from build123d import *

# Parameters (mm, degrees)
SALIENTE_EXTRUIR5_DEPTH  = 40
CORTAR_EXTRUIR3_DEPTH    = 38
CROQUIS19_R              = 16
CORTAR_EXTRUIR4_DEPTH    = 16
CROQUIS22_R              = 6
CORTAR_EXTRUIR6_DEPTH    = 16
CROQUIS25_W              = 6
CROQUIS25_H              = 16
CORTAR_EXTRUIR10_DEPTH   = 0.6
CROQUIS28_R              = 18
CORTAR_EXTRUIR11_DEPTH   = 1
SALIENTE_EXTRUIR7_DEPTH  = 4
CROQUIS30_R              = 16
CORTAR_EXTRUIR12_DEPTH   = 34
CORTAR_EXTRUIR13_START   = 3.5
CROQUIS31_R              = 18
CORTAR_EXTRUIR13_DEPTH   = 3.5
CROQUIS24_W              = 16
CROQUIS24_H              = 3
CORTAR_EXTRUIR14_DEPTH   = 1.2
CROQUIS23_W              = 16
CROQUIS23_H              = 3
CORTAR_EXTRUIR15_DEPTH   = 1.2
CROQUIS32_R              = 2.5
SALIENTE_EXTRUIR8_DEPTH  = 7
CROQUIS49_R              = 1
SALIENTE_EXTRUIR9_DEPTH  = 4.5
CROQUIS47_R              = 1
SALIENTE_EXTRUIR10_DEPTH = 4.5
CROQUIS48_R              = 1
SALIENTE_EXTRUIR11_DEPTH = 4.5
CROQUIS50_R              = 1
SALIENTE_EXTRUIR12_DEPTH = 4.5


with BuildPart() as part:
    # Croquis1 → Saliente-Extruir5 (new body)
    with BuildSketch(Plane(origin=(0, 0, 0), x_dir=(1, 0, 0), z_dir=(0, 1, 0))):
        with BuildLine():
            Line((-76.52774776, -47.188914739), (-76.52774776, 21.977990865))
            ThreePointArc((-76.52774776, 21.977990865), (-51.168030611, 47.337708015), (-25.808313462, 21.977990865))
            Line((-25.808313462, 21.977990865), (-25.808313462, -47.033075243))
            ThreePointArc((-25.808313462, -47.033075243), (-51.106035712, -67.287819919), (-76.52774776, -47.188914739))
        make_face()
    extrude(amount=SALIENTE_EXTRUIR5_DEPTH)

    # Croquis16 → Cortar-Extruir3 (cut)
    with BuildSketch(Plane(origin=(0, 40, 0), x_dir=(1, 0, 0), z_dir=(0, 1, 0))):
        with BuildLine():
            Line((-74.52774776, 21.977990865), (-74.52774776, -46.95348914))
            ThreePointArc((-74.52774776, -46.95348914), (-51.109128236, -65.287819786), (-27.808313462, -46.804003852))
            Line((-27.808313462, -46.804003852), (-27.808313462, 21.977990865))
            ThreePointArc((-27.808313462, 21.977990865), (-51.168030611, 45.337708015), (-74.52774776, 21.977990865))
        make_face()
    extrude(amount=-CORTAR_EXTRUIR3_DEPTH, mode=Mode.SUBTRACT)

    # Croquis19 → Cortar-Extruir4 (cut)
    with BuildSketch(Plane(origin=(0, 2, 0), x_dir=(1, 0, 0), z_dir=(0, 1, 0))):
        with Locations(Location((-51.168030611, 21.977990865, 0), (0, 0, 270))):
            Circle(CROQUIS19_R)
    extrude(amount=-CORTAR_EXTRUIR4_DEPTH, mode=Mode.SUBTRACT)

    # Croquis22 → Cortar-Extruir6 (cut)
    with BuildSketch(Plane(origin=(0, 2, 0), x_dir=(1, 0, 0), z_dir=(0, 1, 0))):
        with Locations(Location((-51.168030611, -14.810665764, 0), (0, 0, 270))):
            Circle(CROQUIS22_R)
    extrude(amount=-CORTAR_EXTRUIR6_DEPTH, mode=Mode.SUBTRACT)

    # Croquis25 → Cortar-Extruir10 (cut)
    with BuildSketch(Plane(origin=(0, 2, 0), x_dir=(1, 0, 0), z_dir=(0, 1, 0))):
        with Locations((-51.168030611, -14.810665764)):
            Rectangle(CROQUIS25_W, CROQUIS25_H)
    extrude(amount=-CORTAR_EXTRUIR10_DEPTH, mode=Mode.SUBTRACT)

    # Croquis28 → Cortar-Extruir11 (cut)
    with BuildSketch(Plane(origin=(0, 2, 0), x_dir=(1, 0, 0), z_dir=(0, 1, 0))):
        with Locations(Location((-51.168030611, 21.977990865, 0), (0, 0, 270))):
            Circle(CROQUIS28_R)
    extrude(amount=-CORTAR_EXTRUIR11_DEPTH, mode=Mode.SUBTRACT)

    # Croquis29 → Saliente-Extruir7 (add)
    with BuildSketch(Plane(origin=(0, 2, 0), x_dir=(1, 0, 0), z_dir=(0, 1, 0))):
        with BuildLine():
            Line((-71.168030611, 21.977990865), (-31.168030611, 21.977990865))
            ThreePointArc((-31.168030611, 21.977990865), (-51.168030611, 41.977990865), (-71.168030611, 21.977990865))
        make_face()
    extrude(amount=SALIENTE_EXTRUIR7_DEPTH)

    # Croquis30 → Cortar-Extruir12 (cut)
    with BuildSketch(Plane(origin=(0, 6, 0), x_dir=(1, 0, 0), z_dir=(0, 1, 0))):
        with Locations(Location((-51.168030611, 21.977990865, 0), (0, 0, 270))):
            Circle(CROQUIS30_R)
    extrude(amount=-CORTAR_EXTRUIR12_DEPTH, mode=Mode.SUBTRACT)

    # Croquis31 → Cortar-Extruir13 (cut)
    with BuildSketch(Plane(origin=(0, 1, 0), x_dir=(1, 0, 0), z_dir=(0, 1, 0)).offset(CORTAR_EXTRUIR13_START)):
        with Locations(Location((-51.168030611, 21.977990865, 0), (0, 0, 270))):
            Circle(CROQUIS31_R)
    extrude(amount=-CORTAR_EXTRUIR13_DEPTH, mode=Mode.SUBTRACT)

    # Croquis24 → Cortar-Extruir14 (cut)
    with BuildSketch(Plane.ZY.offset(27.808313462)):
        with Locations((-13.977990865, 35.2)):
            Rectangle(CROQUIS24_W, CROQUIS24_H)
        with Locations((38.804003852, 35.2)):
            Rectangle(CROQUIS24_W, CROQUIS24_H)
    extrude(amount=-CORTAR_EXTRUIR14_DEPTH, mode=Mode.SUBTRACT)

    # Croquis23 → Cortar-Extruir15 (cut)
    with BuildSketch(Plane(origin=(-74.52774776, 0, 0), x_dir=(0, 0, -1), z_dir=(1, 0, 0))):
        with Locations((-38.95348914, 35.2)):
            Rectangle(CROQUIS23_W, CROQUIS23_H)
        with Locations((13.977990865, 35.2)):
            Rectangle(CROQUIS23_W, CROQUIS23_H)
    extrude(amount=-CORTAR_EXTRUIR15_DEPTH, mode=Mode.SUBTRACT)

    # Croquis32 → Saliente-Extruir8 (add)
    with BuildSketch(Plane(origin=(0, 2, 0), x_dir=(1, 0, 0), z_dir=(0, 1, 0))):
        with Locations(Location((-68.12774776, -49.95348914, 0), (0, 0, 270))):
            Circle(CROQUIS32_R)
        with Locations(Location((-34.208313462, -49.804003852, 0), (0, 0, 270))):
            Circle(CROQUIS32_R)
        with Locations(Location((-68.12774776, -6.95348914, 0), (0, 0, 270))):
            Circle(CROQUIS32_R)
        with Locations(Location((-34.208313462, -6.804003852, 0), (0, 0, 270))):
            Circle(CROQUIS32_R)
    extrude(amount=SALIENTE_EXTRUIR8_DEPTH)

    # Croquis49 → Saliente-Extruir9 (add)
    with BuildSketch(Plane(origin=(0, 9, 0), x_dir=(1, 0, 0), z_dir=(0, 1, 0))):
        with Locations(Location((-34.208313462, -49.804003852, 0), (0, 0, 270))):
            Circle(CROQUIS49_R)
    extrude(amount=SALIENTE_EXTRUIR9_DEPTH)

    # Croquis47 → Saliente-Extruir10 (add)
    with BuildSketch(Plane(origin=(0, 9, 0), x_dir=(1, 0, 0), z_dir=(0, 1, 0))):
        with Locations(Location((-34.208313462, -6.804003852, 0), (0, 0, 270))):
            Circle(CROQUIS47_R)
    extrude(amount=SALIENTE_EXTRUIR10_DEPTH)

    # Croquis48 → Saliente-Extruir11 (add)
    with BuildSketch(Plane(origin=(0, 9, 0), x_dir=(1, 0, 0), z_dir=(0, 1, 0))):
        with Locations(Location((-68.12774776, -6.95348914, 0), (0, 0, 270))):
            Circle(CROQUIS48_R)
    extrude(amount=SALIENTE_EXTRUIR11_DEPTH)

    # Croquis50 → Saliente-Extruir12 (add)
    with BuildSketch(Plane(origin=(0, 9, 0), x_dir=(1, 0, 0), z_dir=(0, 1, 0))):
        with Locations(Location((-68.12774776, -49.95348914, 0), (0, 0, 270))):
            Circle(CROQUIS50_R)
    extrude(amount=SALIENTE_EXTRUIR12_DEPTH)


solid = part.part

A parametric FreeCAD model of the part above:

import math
import FreeCAD as App
import Part
import Sketcher
from FreeCAD import Vector
Q = App.Units.Quantity


def add_polygon(sketch, points):
    """Adds a closed chain of lines whose ends are joined by coincident constraints."""
    first, n = sketch.GeometryCount, len(points)
    for a, b in zip(points, points[1:] + points[:1]):
        sketch.addGeometry(Part.LineSegment(App.Vector(*a, 0), App.Vector(*b, 0)), False)
    for i in range(n):
        sketch.addConstraint(Sketcher.Constraint("Coincident", first + i, 2, first + (i + 1) % n, 1))

doc = App.newDocument("Part")
body = doc.addObject("PartDesign::Body", "Body")

# Sketch on XZ plane
sketch1 = doc.addObject("Sketcher::SketchObject", "Sketch")
body.addObject(sketch1)
sketch1.AttachmentSupport = (doc.XZ_Plane, [""])
sketch1.MapMode = "FlatFace"
sketch1.addGeometry([
    Part.LineSegment(Vector(-76.527748, -21.977991, 0), Vector(-76.527748, 47.188915, 0)),
    Part.ArcOfCircle(Part.Circle(Vector(-51.186001, 41.262429, 0), Vector(0, 0, 1), 26.025514), math.radians(12.810685), math.radians(166.837224)),
    Part.LineSegment(Vector(-25.808313, 47.033075, 0), Vector(-25.808313, -21.977991, 0)),
    Part.ArcOfCircle(Part.Circle(Vector(-51.168031, -21.977991, 0), Vector(0, 0, 1), 25.359717), math.radians(180), math.radians(360)),
], False)
sketch1.addConstraint([
    Sketcher.Constraint("Coincident", 0, 2, 1, 2),
    Sketcher.Constraint("Coincident", 1, 1, 2, 1),
    Sketcher.Constraint("Tangent", 2, 2, 3, 2),
    Sketcher.Constraint("Tangent", 3, 1, 0, 1),
    Sketcher.Constraint("Vertical", 0),
    Sketcher.Constraint("Vertical", 2),
    Sketcher.Constraint("DistanceX", 1, 3, -1, 1, Q("51.186001 mm")),
    Sketcher.Constraint("Radius", 1, Q("26.025514 mm")),
    Sketcher.Constraint("Radius", 3, Q("25.359717 mm")),
    Sketcher.Constraint("DistanceY", 0, 1, 0, 2, Q("69.166906 mm")),
    Sketcher.Constraint("DistanceY", 2, 2, 2, 1, Q("69.011066 mm")),
    Sketcher.Constraint("DistanceY", -1, 1, 1, 3, Q("41.262429 mm")),
])
pad1 = doc.addObject("PartDesign::Pad", "Pad")
body.addObject(pad1)
pad1.Profile = sketch1
pad1.Length = 40
pad1.Reversed = True

# Sketch on XZ plane
sketch2 = doc.addObject("Sketcher::SketchObject", "Sketch001")
body.addObject(sketch2)
sketch2.AttachmentSupport = (doc.XZ_Plane, [""])
sketch2.MapMode = "FlatFace"
sketch2.AttachmentOffset = App.Placement(Vector(0, 0, -40), App.Rotation())
sketch2.addGeometry([
    Part.LineSegment(Vector(-74.527748, -21.977991, 0), Vector(-74.527748, 46.953489, 0)),
    Part.ArcOfCircle(Part.Circle(Vector(-51.186001, 41.262429, 0), Vector(0, 0, 1), 24.025514), math.radians(13.335564), math.radians(166.297786)),
    Part.LineSegment(Vector(-27.808313, 46.804004, 0), Vector(-27.808313, -21.977991, 0)),
    Part.ArcOfCircle(Part.Circle(Vector(-51.168031, -21.977991, 0), Vector(0, 0, 1), 23.359717), math.radians(180), math.radians(360)),
], False)
sketch2.addConstraint([
    Sketcher.Constraint("Coincident", 0, 2, 1, 2),
    Sketcher.Constraint("Coincident", 1, 1, 2, 1),
    Sketcher.Constraint("Tangent", 2, 2, 3, 2),
    Sketcher.Constraint("Tangent", 3, 1, 0, 1),
    Sketcher.Constraint("Vertical", 0),
    Sketcher.Constraint("Vertical", 2),
    Sketcher.Constraint("DistanceX", 1, 3, -1, 1, Q("51.186001 mm")),
    Sketcher.Constraint("Radius", 1, Q("24.025514 mm")),
    Sketcher.Constraint("Radius", 3, Q("23.359717 mm")),
    Sketcher.Constraint("DistanceY", 0, 1, 0, 2, Q("68.93148 mm")),
    Sketcher.Constraint("DistanceY", 2, 2, 2, 1, Q("68.781995 mm")),
    Sketcher.Constraint("DistanceY", -1, 1, 1, 3, Q("41.262429 mm")),
])
pocket1 = doc.addObject("PartDesign::Pocket", "Pocket")
body.addObject(pocket1)
pocket1.Profile = sketch2
pocket1.Length = 38
pocket1.Reversed = True

# Sketch on XZ plane
sketch3 = doc.addObject("Sketcher::SketchObject", "Sketch002")
body.addObject(sketch3)
sketch3.AttachmentSupport = (doc.XZ_Plane, [""])
sketch3.MapMode = "FlatFace"
sketch3.AttachmentOffset = App.Placement(Vector(0, 0, -2), App.Rotation())
sketch3.addGeometry(Part.Circle(Vector(-51.168031, -21.977991, 0), Vector(0, 0, 1), 16), False)
sketch3.addConstraint([
    Sketcher.Constraint("Diameter", 0, Q("32 mm")),
    Sketcher.Constraint("DistanceX", 0, 3, -1, 1, Q("51.168031 mm")),
    Sketcher.Constraint("DistanceY", 0, 3, -1, 1, Q("21.977991 mm")),
])
pocket2 = doc.addObject("PartDesign::Pocket", "Pocket001")
body.addObject(pocket2)
pocket2.Profile = sketch3
pocket2.Length = 16
pocket2.Reversed = True

# Sketch on XZ plane
sketch4 = doc.addObject("Sketcher::SketchObject", "Sketch003")
body.addObject(sketch4)
sketch4.AttachmentSupport = (doc.XZ_Plane, [""])
sketch4.MapMode = "FlatFace"
sketch4.AttachmentOffset = App.Placement(Vector(0, 0, -2), App.Rotation())
sketch4.addGeometry(Part.Circle(Vector(-51.168031, 14.810666, 0), Vector(0, 0, 1), 6), False)
sketch4.addConstraint([
    Sketcher.Constraint("Diameter", 0, Q("12 mm")),
    Sketcher.Constraint("DistanceX", 0, 3, -1, 1, Q("51.168031 mm")),
    Sketcher.Constraint("DistanceY", -1, 1, 0, 3, Q("14.810666 mm")),
])
pocket3 = doc.addObject("PartDesign::Pocket", "Pocket002")
body.addObject(pocket3)
pocket3.Profile = sketch4
pocket3.Length = 16
pocket3.Reversed = True

# Sketch on XZ plane
sketch5 = doc.addObject("Sketcher::SketchObject", "Sketch004")
body.addObject(sketch5)
sketch5.AttachmentSupport = (doc.XZ_Plane, [""])
sketch5.MapMode = "FlatFace"
sketch5.AttachmentOffset = App.Placement(Vector(0, 0, -2), App.Rotation())
add_polygon(sketch5, [(-54.168031, 6.810666), (-54.168031, 22.810666), (-48.168031, 22.810666), (-48.168031, 6.810666)])  # lines 0-3
sketch5.addConstraint([
    Sketcher.Constraint("Vertical", 0),
    Sketcher.Constraint("Horizontal", 1),
    Sketcher.Constraint("Vertical", 2),
    Sketcher.Constraint("Horizontal", 3),
    Sketcher.Constraint("DistanceX", 1, 1, 1, 2, Q("6 mm")),
    Sketcher.Constraint("DistanceY", 0, 1, 0, 2, Q("16 mm")),
    Sketcher.Constraint("DistanceX", 0, 2, -1, 1, Q("54.168031 mm")),
    Sketcher.Constraint("DistanceY", -1, 1, 0, 2, Q("22.810666 mm")),
])
pocket4 = doc.addObject("PartDesign::Pocket", "Pocket003")
body.addObject(pocket4)
pocket4.Profile = sketch5
pocket4.Length = 0.6
pocket4.Reversed = True

# Sketch on XZ plane
sketch6 = doc.addObject("Sketcher::SketchObject", "Sketch005")
body.addObject(sketch6)
sketch6.AttachmentSupport = (doc.XZ_Plane, [""])
sketch6.MapMode = "FlatFace"
sketch6.AttachmentOffset = App.Placement(Vector(0, 0, -2), App.Rotation())
sketch6.addGeometry(Part.Circle(Vector(-51.168031, -21.977991, 0), Vector(0, 0, 1), 18), False)
sketch6.addConstraint([
    Sketcher.Constraint("Diameter", 0, Q("36 mm")),
    Sketcher.Constraint("DistanceX", 0, 3, -1, 1, Q("51.168031 mm")),
    Sketcher.Constraint("DistanceY", 0, 3, -1, 1, Q("21.977991 mm")),
])
pocket5 = doc.addObject("PartDesign::Pocket", "Pocket004")
body.addObject(pocket5)
pocket5.Profile = sketch6
pocket5.Length = 1
pocket5.Reversed = True

# Sketch on XZ plane
sketch7 = doc.addObject("Sketcher::SketchObject", "Sketch006")
body.addObject(sketch7)
sketch7.AttachmentSupport = (doc.XZ_Plane, [""])
sketch7.MapMode = "FlatFace"
sketch7.AttachmentOffset = App.Placement(Vector(0, 0, -2), App.Rotation())
sketch7.addGeometry([
    Part.LineSegment(Vector(-71.168031, -21.977991, 0), Vector(-31.168031, -21.977991, 0)),
    Part.ArcOfCircle(Part.Circle(Vector(-51.168031, -21.977991, 0), Vector(0, 0, 1), 20), math.radians(180), math.radians(360)),
], False)
sketch7.addConstraint([
    Sketcher.Constraint("Coincident", 0, 1, 1, 1),
    Sketcher.Constraint("Coincident", 1, 2, 0, 2),
    Sketcher.Constraint("Horizontal", 0),
    Sketcher.Constraint("Horizontal", 1, 3, 0, 1),
    Sketcher.Constraint("Radius", 1, Q("20 mm")),
    Sketcher.Constraint("DistanceX", 1, 3, -1, 1, Q("51.168031 mm")),
    Sketcher.Constraint("DistanceY", 1, 3, -1, 1, Q("21.977991 mm")),
])
pad2 = doc.addObject("PartDesign::Pad", "Pad001")
body.addObject(pad2)
pad2.Profile = sketch7
pad2.Length = 4
pad2.Reversed = True

# Sketch on XZ plane
sketch8 = doc.addObject("Sketcher::SketchObject", "Sketch007")
body.addObject(sketch8)
sketch8.AttachmentSupport = (doc.XZ_Plane, [""])
sketch8.MapMode = "FlatFace"
sketch8.AttachmentOffset = App.Placement(Vector(0, 0, -6), App.Rotation())
sketch8.addGeometry(Part.Circle(Vector(-51.168031, -21.977991, 0), Vector(0, 0, 1), 16), False)
sketch8.addConstraint([
    Sketcher.Constraint("Diameter", 0, Q("32 mm")),
    Sketcher.Constraint("DistanceX", 0, 3, -1, 1, Q("51.168031 mm")),
    Sketcher.Constraint("DistanceY", 0, 3, -1, 1, Q("21.977991 mm")),
])
pocket6 = doc.addObject("PartDesign::Pocket", "Pocket005")
body.addObject(pocket6)
pocket6.Profile = sketch8
pocket6.Length = 34
pocket6.Reversed = True

# Sketch on XZ plane
sketch9 = doc.addObject("Sketcher::SketchObject", "Sketch008")
body.addObject(sketch9)
sketch9.AttachmentSupport = (doc.XZ_Plane, [""])
sketch9.MapMode = "FlatFace"
sketch9.AttachmentOffset = App.Placement(Vector(0, 0, -4.5), App.Rotation())
sketch9.addGeometry(Part.Circle(Vector(-51.168031, -21.977991, 0), Vector(0, 0, 1), 18), False)
sketch9.addConstraint([
    Sketcher.Constraint("Diameter", 0, Q("36 mm")),
    Sketcher.Constraint("DistanceX", 0, 3, -1, 1, Q("51.168031 mm")),
    Sketcher.Constraint("DistanceY", 0, 3, -1, 1, Q("21.977991 mm")),
])
pocket7 = doc.addObject("PartDesign::Pocket", "Pocket006")
body.addObject(pocket7)
pocket7.Profile = sketch9
pocket7.Length = 3.5
pocket7.Reversed = True

# Sketch on YZ plane
sketch10 = doc.addObject("Sketcher::SketchObject", "Sketch009")
body.addObject(sketch10)
sketch10.AttachmentSupport = (doc.YZ_Plane, [""])
sketch10.MapMode = "FlatFace"
sketch10.AttachmentOffset = App.Placement(Vector(0, 0, -27.808313), App.Rotation())
add_polygon(sketch10, [(36.7, -21.977991), (33.7, -21.977991), (33.7, -5.977991), (36.7, -5.977991)])  # lines 0-3
add_polygon(sketch10, [(36.7, 30.804004), (33.7, 30.804004), (33.7, 46.804004), (36.7, 46.804004)])  # lines 4-7
sketch10.addConstraint([
    Sketcher.Constraint("Horizontal", 0),
    Sketcher.Constraint("Vertical", 1),
    Sketcher.Constraint("Horizontal", 2),
    Sketcher.Constraint("Vertical", 3),
    Sketcher.Constraint("Horizontal", 4),
    Sketcher.Constraint("Vertical", 5),
    Sketcher.Constraint("Horizontal", 6),
    Sketcher.Constraint("Vertical", 7),
    Sketcher.Constraint("Vertical", 1, 2, 4, 2),
    Sketcher.Constraint("Vertical", 3, 2, 6, 2),
    Sketcher.Constraint("Equal", 3, 5),
    Sketcher.Constraint("DistanceX", 0, 2, 0, 1, Q("3 mm")),
    Sketcher.Constraint("DistanceY", 1, 1, 1, 2, Q("16 mm")),
    Sketcher.Constraint("DistanceX", -1, 1, 0, 2, Q("33.7 mm")),
    Sketcher.Constraint("DistanceY", 0, 2, -1, 1, Q("21.977991 mm")),
    Sketcher.Constraint("DistanceY", -1, 1, 4, 2, Q("30.804004 mm")),
])
pocket8 = doc.addObject("PartDesign::Pocket", "Pocket007")
body.addObject(pocket8)
pocket8.Profile = sketch10
pocket8.Length = 1.2
pocket8.Reversed = True

# Sketch on YZ plane
sketch11 = doc.addObject("Sketcher::SketchObject", "Sketch010")
body.addObject(sketch11)
sketch11.AttachmentSupport = (doc.YZ_Plane, [""])
sketch11.MapMode = "FlatFace"
sketch11.AttachmentOffset = App.Placement(Vector(0, 0, -74.527748), App.Rotation())
add_polygon(sketch11, [(36.7, 46.953489), (33.7, 46.953489), (33.7, 30.953489), (36.7, 30.953489)])  # lines 0-3
add_polygon(sketch11, [(36.7, -5.977991), (33.7, -5.977991), (33.7, -21.977991), (36.7, -21.977991)])  # lines 4-7
sketch11.addConstraint([
    Sketcher.Constraint("Horizontal", 0),
    Sketcher.Constraint("Vertical", 1),
    Sketcher.Constraint("Horizontal", 2),
    Sketcher.Constraint("Vertical", 3),
    Sketcher.Constraint("Horizontal", 4),
    Sketcher.Constraint("Vertical", 5),
    Sketcher.Constraint("Horizontal", 6),
    Sketcher.Constraint("Vertical", 7),
    Sketcher.Constraint("Vertical", 1, 2, 4, 2),
    Sketcher.Constraint("Vertical", 3, 2, 6, 2),
    Sketcher.Constraint("Equal", 3, 5),
    Sketcher.Constraint("DistanceX", 0, 2, 0, 1, Q("3 mm")),
    Sketcher.Constraint("DistanceY", 1, 2, 1, 1, Q("16 mm")),
    Sketcher.Constraint("DistanceX", -1, 1, 0, 2, Q("33.7 mm")),
    Sketcher.Constraint("DistanceY", -1, 1, 0, 2, Q("46.953489 mm")),
    Sketcher.Constraint("DistanceY", 4, 2, -1, 1, Q("5.977991 mm")),
])
pocket9 = doc.addObject("PartDesign::Pocket", "Pocket008")
body.addObject(pocket9)
pocket9.Profile = sketch11
pocket9.Length = 1.2

# Sketch on XZ plane
sketch12 = doc.addObject("Sketcher::SketchObject", "Sketch011")
body.addObject(sketch12)
sketch12.AttachmentSupport = (doc.XZ_Plane, [""])
sketch12.MapMode = "FlatFace"
sketch12.AttachmentOffset = App.Placement(Vector(0, 0, -2), App.Rotation())
sketch12.addGeometry([
    Part.Circle(Vector(-68.127748, 49.953489, 0), Vector(0, 0, 1), 2.5),
    Part.Circle(Vector(-34.208313, 49.804004, 0), Vector(0, 0, 1), 2.5),
    Part.Circle(Vector(-68.127748, 6.953489, 0), Vector(0, 0, 1), 2.5),
    Part.Circle(Vector(-34.208313, 6.804004, 0), Vector(0, 0, 1), 2.5),
], False)
sketch12.addConstraint([
    Sketcher.Constraint("Equal", 0, 1),
    Sketcher.Constraint("Equal", 1, 2),
    Sketcher.Constraint("Equal", 2, 3),
    Sketcher.Constraint("Vertical", 0, 3, 2, 3),
    Sketcher.Constraint("Vertical", 1, 3, 3, 3),
    Sketcher.Constraint("Diameter", 0, Q("5 mm")),
    Sketcher.Constraint("DistanceY", 2, 3, 0, 3, Q("43 mm")),
    Sketcher.Constraint("DistanceY", 3, 3, 1, 3, Q("43 mm")),
    Sketcher.Constraint("DistanceY", -1, 1, 0, 3, Q("49.953489 mm")),
    Sketcher.Constraint("DistanceX", 0, 3, -1, 1, Q("68.127748 mm")),
    Sketcher.Constraint("DistanceX", 1, 3, -1, 1, Q("34.208313 mm")),
    Sketcher.Constraint("DistanceY", -1, 1, 1, 3, Q("49.804004 mm")),
])
pad3 = doc.addObject("PartDesign::Pad", "Pad002")
body.addObject(pad3)
pad3.Profile = sketch12
pad3.Length = 7
pad3.Reversed = True

# Sketch on XZ plane
sketch13 = doc.addObject("Sketcher::SketchObject", "Sketch012")
body.addObject(sketch13)
sketch13.AttachmentSupport = (doc.XZ_Plane, [""])
sketch13.MapMode = "FlatFace"
sketch13.AttachmentOffset = App.Placement(Vector(0, 0, -9), App.Rotation())
sketch13.addGeometry(Part.Circle(Vector(-34.208313, 49.804004, 0), Vector(0, 0, 1), 1), False)
sketch13.addConstraint([
    Sketcher.Constraint("Diameter", 0, Q("2 mm")),
    Sketcher.Constraint("DistanceX", 0, 3, -1, 1, Q("34.208313 mm")),
    Sketcher.Constraint("DistanceY", -1, 1, 0, 3, Q("49.804004 mm")),
])
pad4 = doc.addObject("PartDesign::Pad", "Pad003")
body.addObject(pad4)
pad4.Profile = sketch13
pad4.Length = 4.5
pad4.Reversed = True

# Sketch on XZ plane
sketch14 = doc.addObject("Sketcher::SketchObject", "Sketch013")
body.addObject(sketch14)
sketch14.AttachmentSupport = (doc.XZ_Plane, [""])
sketch14.MapMode = "FlatFace"
sketch14.AttachmentOffset = App.Placement(Vector(0, 0, -9), App.Rotation())
sketch14.addGeometry(Part.Circle(Vector(-34.208313, 6.804004, 0), Vector(0, 0, 1), 1), False)
sketch14.addConstraint([
    Sketcher.Constraint("Diameter", 0, Q("2 mm")),
    Sketcher.Constraint("DistanceX", 0, 3, -1, 1, Q("34.208313 mm")),
    Sketcher.Constraint("DistanceY", -1, 1, 0, 3, Q("6.804004 mm")),
])
pad5 = doc.addObject("PartDesign::Pad", "Pad004")
body.addObject(pad5)
pad5.Profile = sketch14
pad5.Length = 4.5
pad5.Reversed = True

# Sketch on XZ plane
sketch15 = doc.addObject("Sketcher::SketchObject", "Sketch014")
body.addObject(sketch15)
sketch15.AttachmentSupport = (doc.XZ_Plane, [""])
sketch15.MapMode = "FlatFace"
sketch15.AttachmentOffset = App.Placement(Vector(0, 0, -9), App.Rotation())
sketch15.addGeometry(Part.Circle(Vector(-68.127748, 6.953489, 0), Vector(0, 0, 1), 1), False)
sketch15.addConstraint([
    Sketcher.Constraint("Diameter", 0, Q("2 mm")),
    Sketcher.Constraint("DistanceY", -1, 1, 0, 3, Q("6.953489 mm")),
    Sketcher.Constraint("DistanceX", 0, 3, -1, 1, Q("68.127748 mm")),
])
pad6 = doc.addObject("PartDesign::Pad", "Pad005")
body.addObject(pad6)
pad6.Profile = sketch15
pad6.Length = 4.5
pad6.Reversed = True

# Sketch on XZ plane
sketch16 = doc.addObject("Sketcher::SketchObject", "Sketch015")
body.addObject(sketch16)
sketch16.AttachmentSupport = (doc.XZ_Plane, [""])
sketch16.MapMode = "FlatFace"
sketch16.AttachmentOffset = App.Placement(Vector(0, 0, -9), App.Rotation())
sketch16.addGeometry(Part.Circle(Vector(-68.127748, 49.953489, 0), Vector(0, 0, 1), 1), False)
sketch16.addConstraint([
    Sketcher.Constraint("Diameter", 0, Q("2 mm")),
    Sketcher.Constraint("DistanceY", -1, 1, 0, 3, Q("49.953489 mm")),
    Sketcher.Constraint("DistanceX", 0, 3, -1, 1, Q("68.127748 mm")),
])
pad7 = doc.addObject("PartDesign::Pad", "Pad006")
body.addObject(pad7)
pad7.Profile = sketch16
pad7.Length = 4.5
pad7.Reversed = True

doc.recompute()
